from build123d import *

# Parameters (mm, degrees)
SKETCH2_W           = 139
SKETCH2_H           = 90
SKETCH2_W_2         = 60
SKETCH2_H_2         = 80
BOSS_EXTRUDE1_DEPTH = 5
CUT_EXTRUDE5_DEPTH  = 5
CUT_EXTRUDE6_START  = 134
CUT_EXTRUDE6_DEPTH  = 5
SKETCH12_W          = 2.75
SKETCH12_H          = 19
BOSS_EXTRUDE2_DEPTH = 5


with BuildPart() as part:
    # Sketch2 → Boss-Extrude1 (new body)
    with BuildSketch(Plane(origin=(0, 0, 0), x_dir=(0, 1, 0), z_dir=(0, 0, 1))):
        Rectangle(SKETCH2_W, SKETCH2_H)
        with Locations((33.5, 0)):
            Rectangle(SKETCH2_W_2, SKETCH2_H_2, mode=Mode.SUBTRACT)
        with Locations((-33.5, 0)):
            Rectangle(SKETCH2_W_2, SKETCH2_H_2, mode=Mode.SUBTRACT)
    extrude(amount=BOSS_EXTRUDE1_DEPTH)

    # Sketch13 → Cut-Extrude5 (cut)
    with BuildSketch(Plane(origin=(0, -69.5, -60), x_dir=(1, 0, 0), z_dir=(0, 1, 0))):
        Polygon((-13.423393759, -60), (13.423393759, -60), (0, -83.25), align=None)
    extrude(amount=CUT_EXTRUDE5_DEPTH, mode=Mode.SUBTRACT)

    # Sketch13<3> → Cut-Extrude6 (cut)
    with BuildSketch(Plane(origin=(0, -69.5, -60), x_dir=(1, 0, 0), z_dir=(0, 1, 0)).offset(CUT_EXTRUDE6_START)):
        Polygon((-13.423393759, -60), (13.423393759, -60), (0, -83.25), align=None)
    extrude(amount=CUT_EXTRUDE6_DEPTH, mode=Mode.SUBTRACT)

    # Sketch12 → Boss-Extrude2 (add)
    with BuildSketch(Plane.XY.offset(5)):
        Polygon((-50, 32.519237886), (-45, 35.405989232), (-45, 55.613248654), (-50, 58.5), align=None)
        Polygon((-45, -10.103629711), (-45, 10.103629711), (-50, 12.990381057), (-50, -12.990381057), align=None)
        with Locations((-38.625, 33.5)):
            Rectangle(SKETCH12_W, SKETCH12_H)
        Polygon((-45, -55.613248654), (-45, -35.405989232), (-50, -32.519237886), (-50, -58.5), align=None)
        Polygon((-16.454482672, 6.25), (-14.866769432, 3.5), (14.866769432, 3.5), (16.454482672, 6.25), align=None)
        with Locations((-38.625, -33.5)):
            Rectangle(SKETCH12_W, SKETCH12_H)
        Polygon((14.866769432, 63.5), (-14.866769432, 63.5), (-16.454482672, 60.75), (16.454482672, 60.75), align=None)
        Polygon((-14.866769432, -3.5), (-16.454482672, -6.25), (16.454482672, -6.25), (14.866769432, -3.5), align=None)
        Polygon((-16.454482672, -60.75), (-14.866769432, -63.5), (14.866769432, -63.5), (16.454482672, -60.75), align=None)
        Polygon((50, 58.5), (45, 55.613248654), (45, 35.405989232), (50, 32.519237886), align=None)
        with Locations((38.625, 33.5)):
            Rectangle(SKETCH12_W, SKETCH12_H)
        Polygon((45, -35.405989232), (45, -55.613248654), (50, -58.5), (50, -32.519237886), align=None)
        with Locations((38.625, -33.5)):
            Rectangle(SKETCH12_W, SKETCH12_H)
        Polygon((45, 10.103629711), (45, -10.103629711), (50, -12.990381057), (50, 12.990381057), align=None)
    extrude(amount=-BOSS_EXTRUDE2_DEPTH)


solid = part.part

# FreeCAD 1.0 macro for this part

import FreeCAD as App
import Part
import Sketcher
Q = App.Units.Quantity

doc = App.newDocument("Part")
params = doc.addObject("Spreadsheet::Sheet", "Params")
for row, (alias, value) in enumerate([
    ("sketch1_width", "90 mm"),
    ("sketch1_width2", "80 mm"),
    ("sketch1_height", "139 mm"),
    ("sketch1_height2", "60 mm"),
    ("pad1_length", "5 mm"),
    ("pocket1_length", "5 mm"),
    ("pocket2_length", "5 mm"),
    ("sketch4_height", "19 mm"),
    ("sketch4_width", "2.75 mm"),
    ("pad2_length", "5 mm"),
], start=1):
    params.set(f"A{row}", alias)
    params.set(f"B{row}", "=" + value)
    params.setAlias(f"B{row}", alias)

body = doc.addObject("PartDesign::Body", "Body")

sketch1 = doc.addObject("Sketcher::SketchObject", "Sketch")
body.addObject(sketch1)
sketch1.AttachmentSupport = (doc.XY_Plane, [""])
sketch1.MapMode = "FlatFace"
sketch1.addGeometry(Part.LineSegment(App.Vector(-45, -70, 0), App.Vector(45, -70, 0)), False)
sketch1.addGeometry(Part.LineSegment(App.Vector(45, -70, 0), App.Vector(45, 70, 0)), False)
sketch1.addGeometry(Part.LineSegment(App.Vector(45, 70, 0), App.Vector(-45, 70, 0)), False)
sketch1.addGeometry(Part.LineSegment(App.Vector(-45, 70, 0), App.Vector(-45, -70, 0)), False)
sketch1.addGeometry(Part.LineSegment(App.Vector(40, -4, 0), App.Vector(40, -64, 0)), False)
sketch1.addGeometry(Part.LineSegment(App.Vector(40, -64, 0), App.Vector(-40, -64, 0)), False)
sketch1.addGeometry(Part.LineSegment(App.Vector(-40, -64, 0), App.Vector(-40, -4, 0)), False)
sketch1.addGeometry(Part.LineSegment(App.Vector(-40, -4, 0), App.Vector(40, -4, 0)), False)
sketch1.addGeometry(Part.LineSegment(App.Vector(40, 64, 0), App.Vector(40, 4, 0)), False)
sketch1.addGeometry(Part.LineSegment(App.Vector(40, 4, 0), App.Vector(-40, 4, 0)), False)
sketch1.addGeometry(Part.LineSegment(App.Vector(-40, 4, 0), App.Vector(-40, 64, 0)), False)
sketch1.addGeometry(Part.LineSegment(App.Vector(-40, 64, 0), App.Vector(40, 64, 0)), False)
sketch1.addConstraint(Sketcher.Constraint("Coincident", 0, 2, 1, 1))
sketch1.addConstraint(Sketcher.Constraint("Coincident", 1, 2, 2, 1))
sketch1.addConstraint(Sketcher.Constraint("Coincident", 2, 2, 3, 1))
sketch1.addConstraint(Sketcher.Constraint("Coincident", 3, 2, 0, 1))
sketch1.addConstraint(Sketcher.Constraint("Coincident", 4, 2, 5, 1))
sketch1.addConstraint(Sketcher.Constraint("Coincident", 5, 2, 6, 1))
sketch1.addConstraint(Sketcher.Constraint("Coincident", 6, 2, 7, 1))
sketch1.addConstraint(Sketcher.Constraint("Coincident", 7, 2, 4, 1))
sketch1.addConstraint(Sketcher.Constraint("Coincident", 8, 2, 9, 1))
sketch1.addConstraint(Sketcher.Constraint("Coincident", 9, 2, 10, 1))
sketch1.addConstraint(Sketcher.Constraint("Coincident", 10, 2, 11, 1))
sketch1.addConstraint(Sketcher.Constraint("Coincident", 11, 2, 8, 1))
sketch1.addConstraint(Sketcher.Constraint("Horizontal", 0))
sketch1.addConstraint(Sketcher.Constraint("Vertical", 1))
sketch1.addConstraint(Sketcher.Constraint("Horizontal", 2))
sketch1.addConstraint(Sketcher.Constraint("Vertical", 3))
sketch1.addConstraint(Sketcher.Constraint("Vertical", 4))
sketch1.addConstraint(Sketcher.Constraint("Horizontal", 5))
sketch1.addConstraint(Sketcher.Constraint("Vertical", 6))
sketch1.addConstraint(Sketcher.Constraint("Horizontal", 7))
sketch1.addConstraint(Sketcher.Constraint("Vertical", 8))
sketch1.addConstraint(Sketcher.Constraint("Horizontal", 9))
sketch1.addConstraint(Sketcher.Constraint("Vertical", 10))
sketch1.addConstraint(Sketcher.Constraint("Horizontal", 11))
sketch1.addConstraint(Sketcher.Constraint("Symmetric", 0, 2, 2, 2, -1, 1))
sketch1.addConstraint(Sketcher.Constraint("Symmetric", 6, 2, 8, 2, -1, 1))
sketch1.addConstraint(Sketcher.Constraint("Symmetric", 4, 2, 10, 2, -1, 1))
sketch1.addConstraint(Sketcher.Constraint("Vertical", 7, 2, 8, 2))
sketch1.addConstraint(Sketcher.Constraint("DistanceX", 0, 1, 0, 2, 90.0))
sketch1.addConstraint(Sketcher.Constraint("DistanceX", 5, 2, 5, 1, 80.0))
sketch1.addConstraint(Sketcher.Constraint("DistanceY", 1, 1, 1, 2, 139.0))
sketch1.addConstraint(Sketcher.Constraint("DistanceY", 4, 2, 4, 1, 60.0))
sketch1.addConstraint(Sketcher.Constraint("DistanceY", 0, 2, 4, 2, 6.0))
sketch1.setExpression("Constraints[28]", "Params.sketch1_width")
sketch1.setExpression("Constraints[29]", "Params.sketch1_width2")
sketch1.setExpression("Constraints[30]", "Params.sketch1_height")
sketch1.setExpression("Constraints[31]", "Params.sketch1_height2")
pad1 = doc.addObject("PartDesign::Pad", "Pad")
body.addObject(pad1)
pad1.Profile = sketch1
pad1.setExpression("Length", "Params.pad1_length")

sketch2 = doc.addObject("Sketcher::SketchObject", "Sketch001")
body.addObject(sketch2)
sketch2.AttachmentSupport = (doc.XZ_Plane, [""])
sketch2.MapMode = "FlatFace"
sketch2.AttachmentOffset = App.Placement(App.Vector(0, 0, 69.5), App.Rotation())
sketch2.addGeometry(Part.LineSegment(App.Vector(13, 0, 0), App.Vector(-13, 0, 0)), False)
sketch2.addGeometry(Part.LineSegment(App.Vector(-13, 0, 0), App.Vector(0, 23, 0)), False)
sketch2.addGeometry(Part.LineSegment(App.Vector(0, 23, 0), App.Vector(13, 0, 0)), False)
sketch2.addConstraint(Sketcher.Constraint("Coincident", 0, 2, 1, 1))
sketch2.addConstraint(Sketcher.Constraint("Coincident", 1, 2, 2, 1))
sketch2.addConstraint(Sketcher.Constraint("Coincident", 2, 2, 0, 1))
sketch2.addConstraint(Sketcher.Constraint("Horizontal", 0))
sketch2.addConstraint(Sketcher.Constraint("Symmetric", 0, 2, 2, 2, -1, 1))
sketch2.addConstraint(Sketcher.Constraint("PointOnObject", 1, 2, -2))
sketch2.addConstraint(Sketcher.Constraint("Angle", 1, Q("60 deg")))
sketch2.addConstraint(Sketcher.Constraint("DistanceY", -1, 1, 1, 2, 23.25))
pocket1 = doc.addObject("PartDesign::Pocket", "Pocket")
body.addObject(pocket1)
pocket1.Profile = sketch2
pocket1.setExpression("Length", "Params.pocket1_length")

sketch3 = doc.addObject("Sketcher::SketchObject", "Sketch002")
body.addObject(sketch3)
sketch3.AttachmentSupport = (doc.XZ_Plane, [""])
sketch3.MapMode = "FlatFace"
sketch3.AttachmentOffset = App.Placement(App.Vector(0, 0, -64.5), App.Rotation())
sketch3.addGeometry(Part.LineSegment(App.Vector(13, 0, 0), App.Vector(-13, 0, 0)), False)
sketch3.addGeometry(Part.LineSegment(App.Vector(-13, 0, 0), App.Vector(0, 23, 0)), False)
sketch3.addGeometry(Part.LineSegment(App.Vector(0, 23, 0), App.Vector(13, 0, 0)), False)
sketch3.addConstraint(Sketcher.Constraint("Coincident", 0, 2, 1, 1))
sketch3.addConstraint(Sketcher.Constraint("Coincident", 1, 2, 2, 1))
sketch3.addConstraint(Sketcher.Constraint("Coincident", 2, 2, 0, 1))
sketch3.addConstraint(Sketcher.Constraint("Horizontal", 0))
sketch3.addConstraint(Sketcher.Constraint("Symmetric", 0, 2, 2, 2, -1, 1))
sketch3.addConstraint(Sketcher.Constraint("PointOnObject", 1, 2, -2))
sketch3.addConstraint(Sketcher.Constraint("Angle", 1, Q("60 deg")))
sketch3.addConstraint(Sketcher.Constraint("DistanceY", -1, 1, 1, 2, 23.25))
pocket2 = doc.addObject("PartDesign::Pocket", "Pocket001")
body.addObject(pocket2)
pocket2.Profile = sketch3
pocket2.setExpression("Length", "Params.pocket2_length")

sketch4 = doc.addObject("Sketcher::SketchObject", "Sketch003")
body.addObject(sketch4)
sketch4.AttachmentSupport = (doc.XY_Plane, [""])
sketch4.MapMode = "FlatFace"
sketch4.AttachmentOffset = App.Placement(App.Vector(0, 0, 5), App.Rotation())
sketch4.addGeometry(Part.LineSegment(App.Vector(-50, 32.5, 0), App.Vector(-45, 35.4, 0)), False)
sketch4.addGeometry(Part.LineSegment(App.Vector(-45, 35.4, 0), App.Vector(-45, 55.6, 0)), False)
sketch4.addGeometry(Part.LineSegment(App.Vector(-45, 55.6, 0), App.Vector(-50, 58.5, 0)), False)
sketch4.addGeometry(Part.LineSegment(App.Vector(-50, 58.5, 0), App.Vector(-50, 32.5, 0)), False)
sketch4.addGeometry(Part.LineSegment(App.Vector(-45, -10.1, 0), App.Vector(-45, 10.1, 0)), False)
sketch4.addGeometry(Part.LineSegment(App.Vector(-45, 10.1, 0), App.Vector(-50, 13, 0)), False)
sketch4.addGeometry(Part.LineSegment(App.Vector(-50, 13, 0), App.Vector(-50, -13, 0)), False)
sketch4.addGeometry(Part.LineSegment(App.Vector(-50, -13, 0), App.Vector(-45, -10.1, 0)), False)
sketch4.addGeometry(Part.LineSegment(App.Vector(-40, 43, 0), App.Vector(-40, 24, 0)), False)
sketch4.addGeometry(Part.LineSegment(App.Vector(-40, 24, 0), App.Vector(-37.2, 24, 0)), False)
sketch4.addGeometry(Part.LineSegment(App.Vector(-37.2, 24, 0), App.Vector(-37.2, 43, 0)), False)
sketch4.addGeometry(Part.LineSegment(App.Vector(-37.2, 43, 0), App.Vector(-40, 43, 0)), False)
sketch4.addGeometry(Part.LineSegment(App.Vector(-45, -55.6, 0), App.Vector(-45, -35.4, 0)), False)
sketch4.addGeometry(Part.LineSegment(App.Vector(-45, -35.4, 0), App.Vector(-50, -32.5, 0)), False)
sketch4.addGeometry(Part.LineSegment(App.Vector(-50, -32.5, 0), App.Vector(-50, -58.5, 0)), False)
sketch4.addGeometry(Part.LineSegment(App.Vector(-50, -58.5, 0), App.Vector(-45, -55.6, 0)), False)
sketch4.addGeometry(Part.LineSegment(App.Vector(-16.5, 6.2, 0), App.Vector(-14.9, 3.5, 0)), False)
sketch4.addGeometry(Part.LineSegment(App.Vector(-14.9, 3.5, 0), App.Vector(14.9, 3.5, 0)), False)
sketch4.addGeometry(Part.LineSegment(App.Vector(14.9, 3.5, 0), App.Vector(16.5, 6.2, 0)), False)
sketch4.addGeometry(Part.LineSegment(App.Vector(16.5, 6.2, 0), App.Vector(-16.5, 6.2, 0)), False)
sketch4.addGeometry(Part.LineSegment(App.Vector(-40, -24, 0), App.Vector(-40, -43, 0)), False)
sketch4.addGeometry(Part.LineSegment(App.Vector(-40, -43, 0), App.Vector(-37.2, -43, 0)), False)
sketch4.addGeometry(Part.LineSegment(App.Vector(-37.2, -43, 0), App.Vector(-37.2, -24, 0)), False)
sketch4.addGeometry(Part.LineSegment(App.Vector(-37.2, -24, 0), App.Vector(-40, -24, 0)), False)
sketch4.addGeometry(Part.LineSegment(App.Vector(14.9, 63.5, 0), App.Vector(-14.9, 63.5, 0)), False)
sketch4.addGeometry(Part.LineSegment(App.Vector(-14.9, 63.5, 0), App.Vector(-16.5, 60.8, 0)), False)
sketch4.addGeometry(Part.LineSegment(App.Vector(-16.5, 60.8, 0), App.Vector(16.5, 60.8, 0)), False)
sketch4.addGeometry(Part.LineSegment(App.Vector(16.5, 60.8, 0), App.Vector(14.9, 63.5, 0)), False)
sketch4.addGeometry(Part.LineSegment(App.Vector(-14.9, -3.5, 0), App.Vector(-16.5, -6.2, 0)), False)
sketch4.addGeometry(Part.LineSegment(App.Vector(-16.5, -6.2, 0), App.Vector(16.5, -6.2, 0)), False)
sketch4.addGeometry(Part.LineSegment(App.Vector(16.5, -6.2, 0), App.Vector(14.9, -3.5, 0)), False)
sketch4.addGeometry(Part.LineSegment(App.Vector(14.9, -3.5, 0), App.Vector(-14.9, -3.5, 0)), False)
sketch4.addGeometry(Part.LineSegment(App.Vector(-16.5, -60.8, 0), App.Vector(-14.9, -63.5, 0)), False)
sketch4.addGeometry(Part.LineSegment(App.Vector(-14.9, -63.5, 0), App.Vector(14.9, -63.5, 0)), False)
sketch4.addGeometry(Part.LineSegment(App.Vector(14.9, -63.5, 0), App.Vector(16.5, -60.8, 0)), False)
sketch4.addGeometry(Part.LineSegment(App.Vector(16.5, -60.8, 0), App.Vector(-16.5, -60.8, 0)), False)
sketch4.addGeometry(Part.LineSegment(App.Vector(50, 58.5, 0), App.Vector(45, 55.6, 0)), False)
sketch4.addGeometry(Part.LineSegment(App.Vector(45, 55.6, 0), App.Vector(45, 35.4, 0)), False)
sketch4.addGeometry(Part.LineSegment(App.Vector(45, 35.4, 0), App.Vector(50, 32.5, 0)), False)
sketch4.addGeometry(Part.LineSegment(App.Vector(50, 32.5, 0), App.Vector(50, 58.5, 0)), False)
sketch4.addGeometry(Part.LineSegment(App.Vector(37.2, 43, 0), App.Vector(37.2, 24, 0)), False)
sketch4.addGeometry(Part.LineSegment(App.Vector(37.2, 24, 0), App.Vector(40, 24, 0)), False)
sketch4.addGeometry(Part.LineSegment(App.Vector(40, 24, 0), App.Vector(40, 43, 0)), False)
sketch4.addGeometry(Part.LineSegment(App.Vector(40, 43, 0), App.Vector(37.2, 43, 0)), False)
sketch4.addGeometry(Part.LineSegment(App.Vector(45, -35.4, 0), App.Vector(45, -55.6, 0)), False)
sketch4.addGeometry(Part.LineSegment(App.Vector(45, -55.6, 0), App.Vector(50, -58.5, 0)), False)
sketch4.addGeometry(Part.LineSegment(App.Vector(50, -58.5, 0), App.Vector(50, -32.5, 0)), False)
sketch4.addGeometry(Part.LineSegment(App.Vector(50, -32.5, 0), App.Vector(45, -35.4, 0)), False)
sketch4.addGeometry(Part.LineSegment(App.Vector(37.2, -24, 0), App.Vector(37.2, -43, 0)), False)
sketch4.addGeometry(Part.LineSegment(App.Vector(37.2, -43, 0), App.Vector(40, -43, 0)), False)
sketch4.addGeometry(Part.LineSegment(App.Vector(40, -43, 0), App.Vector(40, -24, 0)), False)
sketch4.addGeometry(Part.LineSegment(App.Vector(40, -24, 0), App.Vector(37.2, -24, 0)), False)
sketch4.addGeometry(Part.LineSegment(App.Vector(45, 10.1, 0), App.Vector(45, -10.1, 0)), False)
sketch4.addGeometry(Part.LineSegment(App.Vector(45, -10.1, 0), App.Vector(50, -13, 0)), False)
sketch4.addGeometry(Part.LineSegment(App.Vector(50, -13, 0), App.Vector(50, 13, 0)), False)
sketch4.addGeometry(Part.LineSegment(App.Vector(50, 13, 0), App.Vector(45, 10.1, 0)), False)
sketch4.addConstraint(Sketcher.Constraint("Coincident", 0, 2, 1, 1))
sketch4.addConstraint(Sketcher.Constraint("Coincident", 1, 2, 2, 1))
sketch4.addConstraint(Sketcher.Constraint("Coincident", 2, 2, 3, 1))
sketch4.addConstraint(Sketcher.Constraint("Coincident", 3, 2, 0, 1))
sketch4.addConstraint(Sketcher.Constraint("Coincident", 4, 2, 5, 1))
sketch4.addConstraint(Sketcher.Constraint("Coincident", 5, 2, 6, 1))
sketch4.addConstraint(Sketcher.Constraint("Coincident", 6, 2, 7, 1))
sketch4.addConstraint(Sketcher.Constraint("Coincident", 7, 2, 4, 1))
sketch4.addConstraint(Sketcher.Constraint("Coincident", 8, 2, 9, 1))
sketch4.addConstraint(Sketcher.Constraint("Coincident", 9, 2, 10, 1))
sketch4.addConstraint(Sketcher.Constraint("Coincident", 10, 2, 11, 1))
sketch4.addConstraint(Sketcher.Constraint("Coincident", 11, 2, 8, 1))
sketch4.addConstraint(Sketcher.Constraint("Coincident", 12, 2, 13, 1))
sketch4.addConstraint(Sketcher.Constraint("Coincident", 13, 2, 14, 1))
sketch4.addConstraint(Sketcher.Constraint("Coincident", 14, 2, 15, 1))
sketch4.addConstraint(Sketcher.Constraint("Coincident", 15, 2, 12, 1))
sketch4.addConstraint(Sketcher.Constraint("Coincident", 16, 2, 17, 1))
sketch4.addConstraint(Sketcher.Constraint("Coincident", 17, 2, 18, 1))
sketch4.addConstraint(Sketcher.Constraint("Coincident", 18, 2, 19, 1))
sketch4.addConstraint(Sketcher.Constraint("Coincident", 19, 2, 16, 1))
sketch4.addConstraint(Sketcher.Constraint("Coincident", 20, 2, 21, 1))
sketch4.addConstraint(Sketcher.Constraint("Coincident", 21, 2, 22, 1))
sketch4.addConstraint(Sketcher.Constraint("Coincident", 22, 2, 23, 1))
sketch4.addConstraint(Sketcher.Constraint("Coincident", 23, 2, 20, 1))
sketch4.addConstraint(Sketcher.Constraint("Coincident", 24, 2, 25, 1))
sketch4.addConstraint(Sketcher.Constraint("Coincident", 25, 2, 26, 1))
sketch4.addConstraint(Sketcher.Constraint("Coincident", 26, 2, 27, 1))
sketch4.addConstraint(Sketcher.Constraint("Coincident", 27, 2, 24, 1))
sketch4.addConstraint(Sketcher.Constraint("Coincident", 28, 2, 29, 1))
sketch4.addConstraint(Sketcher.Constraint("Coincident", 29, 2, 30, 1))
sketch4.addConstraint(Sketcher.Constraint("Coincident", 30, 2, 31, 1))
sketch4.addConstraint(Sketcher.Constraint("Coincident", 31, 2, 28, 1))
sketch4.addConstraint(Sketcher.Constraint("Coincident", 32, 2, 33, 1))
sketch4.addConstraint(Sketcher.Constraint("Coincident", 33, 2, 34, 1))
sketch4.addConstraint(Sketcher.Constraint("Coincident", 34, 2, 35, 1))
sketch4.addConstraint(Sketcher.Constraint("Coincident", 35, 2, 32, 1))
sketch4.addConstraint(Sketcher.Constraint("Coincident", 36, 2, 37, 1))
sketch4.addConstraint(Sketcher.Constraint("Coincident", 37, 2, 38, 1))
sketch4.addConstraint(Sketcher.Constraint("Coincident", 38, 2, 39, 1))
sketch4.addConstraint(Sketcher.Constraint("Coincident", 39, 2, 36, 1))
sketch4.addConstraint(Sketcher.Constraint("Coincident", 40, 2, 41, 1))
sketch4.addConstraint(Sketcher.Constraint("Coincident", 41, 2, 42, 1))
sketch4.addConstraint(Sketcher.Constraint("Coincident", 42, 2, 43, 1))
sketch4.addConstraint(Sketcher.Constraint("Coincident", 43, 2, 40, 1))
sketch4.addConstraint(Sketcher.Constraint("Coincident", 44, 2, 45, 1))
sketch4.addConstraint(Sketcher.Constraint("Coincident", 45, 2, 46, 1))
sketch4.addConstraint(Sketcher.Constraint("Coincident", 46, 2, 47, 1))
sketch4.addConstraint(Sketcher.Constraint("Coincident", 47, 2, 44, 1))
sketch4.addConstraint(Sketcher.Constraint("Coincident", 48, 2, 49, 1))
sketch4.addConstraint(Sketcher.Constraint("Coincident", 49, 2, 50, 1))
sketch4.addConstraint(Sketcher.Constraint("Coincident", 50, 2, 51, 1))
sketch4.addConstraint(Sketcher.Constraint("Coincident", 51, 2, 48, 1))
sketch4.addConstraint(Sketcher.Constraint("Coincident", 52, 2, 53, 1))
sketch4.addConstraint(Sketcher.Constraint("Coincident", 53, 2, 54, 1))
sketch4.addConstraint(Sketcher.Constraint("Coincident", 54, 2, 55, 1))
sketch4.addConstraint(Sketcher.Constraint("Coincident", 55, 2, 52, 1))
sketch4.addConstraint(Sketcher.Constraint("Vertical", 1))
sketch4.addConstraint(Sketcher.Constraint("Vertical", 3))
sketch4.addConstraint(Sketcher.Constraint("Vertical", 4))
sketch4.addConstraint(Sketcher.Constraint("Vertical", 6))
sketch4.addConstraint(Sketcher.Constraint("Vertical", 8))
sketch4.addConstraint(Sketcher.Constraint("Horizontal", 9))
sketch4.addConstraint(Sketcher.Constraint("Vertical", 10))
sketch4.addConstraint(Sketcher.Constraint("Horizontal", 11))
sketch4.addConstraint(Sketcher.Constraint("Vertical", 12))
sketch4.addConstraint(Sketcher.Constraint("Vertical", 14))
sketch4.addConstraint(Sketcher.Constraint("Horizontal", 17))
sketch4.addConstraint(Sketcher.Constraint("Horizontal", 19))
sketch4.addConstraint(Sketcher.Constraint("Vertical", 20))
sketch4.addConstraint(Sketcher.Constraint("Horizontal", 21))
sketch4.addConstraint(Sketcher.Constraint("Vertical", 22))
sketch4.addConstraint(Sketcher.Constraint("Horizontal", 23))
sketch4.addConstraint(Sketcher.Constraint("Horizontal", 24))
sketch4.addConstraint(Sketcher.Constraint("Horizontal", 26))
sketch4.addConstraint(Sketcher.Constraint("Horizontal", 29))
sketch4.addConstraint(Sketcher.Constraint("Horizontal", 31))
sketch4.addConstraint(Sketcher.Constraint("Horizontal", 33))
sketch4.addConstraint(Sketcher.Constraint("Horizontal", 35))
sketch4.addConstraint(Sketcher.Constraint("Vertical", 37))
sketch4.addConstraint(Sketcher.Constraint("Vertical", 39))
sketch4.addConstraint(Sketcher.Constraint("Vertical", 40))
sketch4.addConstraint(Sketcher.Constraint("Horizontal", 41))
sketch4.addConstraint(Sketcher.Constraint("Vertical", 42))
sketch4.addConstraint(Sketcher.Constraint("Horizontal", 43))
sketch4.addConstraint(Sketcher.Constraint("Vertical", 44))
sketch4.addConstraint(Sketcher.Constraint("Vertical", 46))
sketch4.addConstraint(Sketcher.Constraint("Vertical", 48))
sketch4.addConstraint(Sketcher.Constraint("Horizontal", 49))
sketch4.addConstraint(Sketcher.Constraint("Vertical", 50))
sketch4.addConstraint(Sketcher.Constraint("Horizontal", 51))
sketch4.addConstraint(Sketcher.Constraint("Vertical", 52))
sketch4.addConstraint(Sketcher.Constraint("Vertical", 54))
sketch4.addConstraint(Sketcher.Constraint("Symmetric", 18, 2, 28, 2, -1, 1))
sketch4.addConstraint(Sketcher.Constraint("Symmetric", 16, 2, 30, 2, -1, 1))
sketch4.addConstraint(Sketcher.Constraint("Symmetric", 27, 2, 32, 2, -1, 1))
sketch4.addConstraint(Sketcher.Constraint("Symmetric", 25, 2, 34, 2, -1, 1))
sketch4.addConstraint(Sketcher.Constraint("Symmetric", 15, 2, 36, 2, -1, 1))
sketch4.addConstraint(Sketcher.Constraint("Symmetric", 13, 2, 38, 2, -1, 1))
sketch4.addConstraint(Sketcher.Constraint("Symmetric", 22, 2, 40, 2, -1, 1))
sketch4.addConstraint(Sketcher.Constraint("Symmetric", 20, 2, 42, 2, -1, 1))
sketch4.addConstraint(Sketcher.Constraint("Symmetric", 1, 2, 44, 2, -1, 1))
sketch4.addConstraint(Sketcher.Constraint("Symmetric", 2, 2, 45, 2, -1, 1))
sketch4.addConstraint(Sketcher.Constraint("Symmetric", 10, 2, 48, 2, -1, 1))
sketch4.addConstraint(Sketcher.Constraint("Symmetric", 8, 2, 50, 2, -1, 1))
sketch4.addConstraint(Sketcher.Constraint("Symmetric", 4, 2, 52, 2, -1, 1))
sketch4.addConstraint(Sketcher.Constraint("Symmetric", 5, 2, 53, 2, -1, 1))
sketch4.addConstraint(Sketcher.Constraint("Symmetric", 1, 2, 36, 2, -2))
sketch4.addConstraint(Sketcher.Constraint("Symmetric", 3, 2, 38, 2, -2))
sketch4.addConstraint(Sketcher.Constraint("Symmetric", 9, 2, 40, 2, -2))
sketch4.addConstraint(Sketcher.Constraint("Symmetric", 11, 2, 42, 2, -2))
sketch4.addConstraint(Sketcher.Constraint("Parallel", 2, 5))
sketch4.addConstraint(Sketcher.Constraint("Parallel", 0, 7))
sketch4.addConstraint(Sketcher.Constraint("Parallel", 5, 13))
sketch4.addConstraint(Sketcher.Constraint("Parallel", 7, 15))
sketch4.addConstraint(Sketcher.Constraint("Perpendicular", 15, 16))
sketch4.addConstraint(Sketcher.Constraint("Perpendicular", 13, 18))
sketch4.addConstraint(Sketcher.Constraint("Parallel", 18, 25))
sketch4.addConstraint(Sketcher.Constraint("Parallel", 16, 27))
sketch4.addConstraint(Sketcher.Constraint("Parallel", 25, 28))
sketch4.addConstraint(Sketcher.Constraint("Parallel", 27, 30))
sketch4.addConstraint(Sketcher.Constraint("Parallel", 30, 32))
sketch4.addConstraint(Sketcher.Constraint("Parallel", 28, 34))
sketch4.addConstraint(Sketcher.Constraint("Perpendicular", 32, 36))
sketch4.addConstraint(Sketcher.Constraint("Perpendicular", 34, 38))
sketch4.addConstraint(Sketcher.Constraint("Parallel", 36, 47))
sketch4.addConstraint(Sketcher.Constraint("Parallel", 47, 55))
sketch4.addConstraint(Sketcher.Constraint("Horizontal", 0, 2, 37, 2))
sketch4.addConstraint(Sketcher.Constraint("Horizontal", 13, 2, 46, 2))
sketch4.addConstraint(Sketcher.Constraint("Horizontal", 7, 2, 52, 2))
sketch4.addConstraint(Sketcher.Constraint("Horizontal", 5, 2, 54, 2))
sketch4.addConstraint(Sketcher.Constraint("Vertical", 1, 2, 4, 2))
sketch4.addConstraint(Sketcher.Constraint("Vertical", 3, 2, 5, 2))
sketch4.addConstraint(Sketcher.Constraint("Vertical", 16, 2, 24, 2))
sketch4.addConstraint(Sketcher.Constraint("Vertical", 19, 2, 25, 2))
sketch4.addConstraint(Sketcher.Constraint("Vertical", 18, 2, 26, 2))
sketch4.addConstraint(Sketcher.Constraint("Vertical", 25, 2, 28, 2))
sketch4.addConstraint(Sketcher.Constraint("Equal", 1, 4))
sketch4.addConstraint(Sketcher.Constraint("DistanceY", 8, 2, 8, 1, 19.0))
sketch4.addConstraint(Sketcher.Constraint("Angle", 0, Q("30 deg")))
sketch4.addConstraint(Sketcher.Constraint("DistanceX", 0, 2, -1, 1, 45.0))
sketch4.addConstraint(Sketcher.Constraint("DistanceX", 2, 2, -1, 1, 50.0))
sketch4.addConstraint(Sketcher.Constraint("DistanceX", 8, 2, -1, 1, 40.0))
sketch4.addConstraint(Sketcher.Constraint("DistanceY", -1, 1, 8, 2, 24.0))
sketch4.addConstraint(Sketcher.Constraint("DistanceY", 2, 2, 24, 2, 5.0))
sketch4.addConstraint(Sketcher.Constraint("DistanceY", 30, 2, 17, 2, 7.0))
sketch4.addConstraint(Sketcher.Constraint("DistanceY", 33, 2, 30, 2, 60.0))
sketch4.addConstraint(Sketcher.Constraint("DistanceX", 9, 1, 9, 2, 2.75))
sketch4.addConstraint(Sketcher.Constraint("DistanceY", 18, 2, 26, 2, 54.5))
sketch4.addConstraint(Sketcher.Constraint("DistanceX", 17, 1, 17, 2, 29.733539))
sketch4.addConstraint(Sketcher.Constraint("DistanceY", 1, 1, 1, 2, 20.207259))
sketch4.setExpression("Constraints[137]", "Params.sketch4_height")
sketch4.setExpression("Constraints[146]", "Params.sketch4_width")
pad2 = doc.addObject("PartDesign::Pad", "Pad001")
body.addObject(pad2)
pad2.Profile = sketch4
pad2.setExpression("Length", "Params.pad2_length")
pad2.Reversed = True

doc.recompute()
